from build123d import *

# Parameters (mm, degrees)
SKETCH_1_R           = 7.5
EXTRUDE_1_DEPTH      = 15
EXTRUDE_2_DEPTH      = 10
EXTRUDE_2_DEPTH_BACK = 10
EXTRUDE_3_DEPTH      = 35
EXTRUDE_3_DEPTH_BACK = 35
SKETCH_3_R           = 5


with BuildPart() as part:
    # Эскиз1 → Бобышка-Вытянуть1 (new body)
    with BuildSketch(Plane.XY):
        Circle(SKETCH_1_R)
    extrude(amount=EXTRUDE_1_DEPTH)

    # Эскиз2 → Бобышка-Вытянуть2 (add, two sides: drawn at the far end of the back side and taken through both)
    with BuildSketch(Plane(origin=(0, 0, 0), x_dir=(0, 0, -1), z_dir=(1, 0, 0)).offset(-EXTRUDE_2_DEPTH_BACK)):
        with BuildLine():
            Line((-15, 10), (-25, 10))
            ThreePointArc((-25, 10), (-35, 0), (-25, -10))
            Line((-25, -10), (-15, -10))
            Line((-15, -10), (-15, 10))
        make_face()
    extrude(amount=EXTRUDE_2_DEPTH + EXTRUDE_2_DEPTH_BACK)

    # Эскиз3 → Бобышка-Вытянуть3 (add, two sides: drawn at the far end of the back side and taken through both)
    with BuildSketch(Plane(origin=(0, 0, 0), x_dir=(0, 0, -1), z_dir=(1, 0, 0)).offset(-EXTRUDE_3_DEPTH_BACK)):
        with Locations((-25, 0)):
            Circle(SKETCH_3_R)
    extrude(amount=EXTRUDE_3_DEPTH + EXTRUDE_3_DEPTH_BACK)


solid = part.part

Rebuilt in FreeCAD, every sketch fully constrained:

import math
import FreeCAD as App
import Part
import Sketcher
from FreeCAD import Vector
Q = App.Units.Quantity

doc = App.newDocument("Part")
body = doc.addObject("PartDesign::Body", "Body")

# Sketch on XY plane
sketch1 = body.newObject("Sketcher::SketchObject", "Sketch")
sketch1.AttachmentSupport = (doc.getObject("XY_Plane"), [""])
sketch1.MapMode = "FlatFace"
sketch1.addGeometry(Part.Circle(Vector(0, 0, 0), Vector(0, 0, 1), 8), False)
sketch1.addConstraint([
    Sketcher.Constraint("Coincident", 0, 3, -1, 1),
    Sketcher.Constraint("Diameter", 0, Q("15 mm")),
])
pad1 = body.newObject("PartDesign::Pad", "Pad")
pad1.Profile = sketch1
pad1.Length = 15

# Sketch on YZ plane
sketch2 = body.newObject("Sketcher::SketchObject", "Sketch001")
sketch2.AttachmentSupport = (doc.getObject("YZ_Plane"), [""])
sketch2.MapMode = "FlatFace"
sketch2.addGeometry([
    Part.LineSegment(Vector(10, 15, 0), Vector(10, 25, 0)),
    Part.ArcOfCircle(Part.Circle(Vector(0, 25, 0), Vector(0, 0, 1), 10), math.radians(0), math.radians(180)),
    Part.LineSegment(Vector(-10, 25, 0), Vector(-10, 15, 0)),
    Part.LineSegment(Vector(-10, 15, 0), Vector(10, 15, 0)),
], False)
sketch2.addConstraint([
    Sketcher.Constraint("Tangent", 0, 2, 1, 1),
    Sketcher.Constraint("Tangent", 1, 2, 2, 1),
    Sketcher.Constraint("Coincident", 2, 2, 3, 1),
    Sketcher.Constraint("Coincident", 3, 2, 0, 1),
    Sketcher.Constraint("Vertical", 0),
    Sketcher.Constraint("Vertical", 2),
    Sketcher.Constraint("Horizontal", 3),
    Sketcher.Constraint("PointOnObject", 1, 3, -2),
    Sketcher.Constraint("Radius", 1, Q("10 mm")),
    Sketcher.Constraint("DistanceY", 0, 1, 0, 2, Q("10 mm")),
    Sketcher.Constraint("DistanceY", -1, 1, 1, 3, Q("25 mm")),
])
pad2 = body.newObject("PartDesign::Pad", "Pad001")
pad2.Profile = sketch2
pad2.Type = "TwoLengths"
pad2.Length = 10
pad2.Length2 = 10

# Sketch on YZ plane
sketch3 = body.newObject("Sketcher::SketchObject", "Sketch002")
sketch3.AttachmentSupport = (doc.getObject("YZ_Plane"), [""])
sketch3.MapMode = "FlatFace"
sketch3.addGeometry(Part.Circle(Vector(0, 25, 0), Vector(0, 0, 1), 5), False)
sketch3.addConstraint([
    Sketcher.Constraint("PointOnObject", 0, 3, -2),
    Sketcher.Constraint("Diameter", 0, Q("10 mm")),
    Sketcher.Constraint("DistanceY", -1, 1, 0, 3, Q("25 mm")),
])
pad3 = body.newObject("PartDesign::Pad", "Pad002")
pad3.Profile = sketch3
pad3.Type = "TwoLengths"
pad3.Length = 35
pad3.Length2 = 35

doc.recompute()
